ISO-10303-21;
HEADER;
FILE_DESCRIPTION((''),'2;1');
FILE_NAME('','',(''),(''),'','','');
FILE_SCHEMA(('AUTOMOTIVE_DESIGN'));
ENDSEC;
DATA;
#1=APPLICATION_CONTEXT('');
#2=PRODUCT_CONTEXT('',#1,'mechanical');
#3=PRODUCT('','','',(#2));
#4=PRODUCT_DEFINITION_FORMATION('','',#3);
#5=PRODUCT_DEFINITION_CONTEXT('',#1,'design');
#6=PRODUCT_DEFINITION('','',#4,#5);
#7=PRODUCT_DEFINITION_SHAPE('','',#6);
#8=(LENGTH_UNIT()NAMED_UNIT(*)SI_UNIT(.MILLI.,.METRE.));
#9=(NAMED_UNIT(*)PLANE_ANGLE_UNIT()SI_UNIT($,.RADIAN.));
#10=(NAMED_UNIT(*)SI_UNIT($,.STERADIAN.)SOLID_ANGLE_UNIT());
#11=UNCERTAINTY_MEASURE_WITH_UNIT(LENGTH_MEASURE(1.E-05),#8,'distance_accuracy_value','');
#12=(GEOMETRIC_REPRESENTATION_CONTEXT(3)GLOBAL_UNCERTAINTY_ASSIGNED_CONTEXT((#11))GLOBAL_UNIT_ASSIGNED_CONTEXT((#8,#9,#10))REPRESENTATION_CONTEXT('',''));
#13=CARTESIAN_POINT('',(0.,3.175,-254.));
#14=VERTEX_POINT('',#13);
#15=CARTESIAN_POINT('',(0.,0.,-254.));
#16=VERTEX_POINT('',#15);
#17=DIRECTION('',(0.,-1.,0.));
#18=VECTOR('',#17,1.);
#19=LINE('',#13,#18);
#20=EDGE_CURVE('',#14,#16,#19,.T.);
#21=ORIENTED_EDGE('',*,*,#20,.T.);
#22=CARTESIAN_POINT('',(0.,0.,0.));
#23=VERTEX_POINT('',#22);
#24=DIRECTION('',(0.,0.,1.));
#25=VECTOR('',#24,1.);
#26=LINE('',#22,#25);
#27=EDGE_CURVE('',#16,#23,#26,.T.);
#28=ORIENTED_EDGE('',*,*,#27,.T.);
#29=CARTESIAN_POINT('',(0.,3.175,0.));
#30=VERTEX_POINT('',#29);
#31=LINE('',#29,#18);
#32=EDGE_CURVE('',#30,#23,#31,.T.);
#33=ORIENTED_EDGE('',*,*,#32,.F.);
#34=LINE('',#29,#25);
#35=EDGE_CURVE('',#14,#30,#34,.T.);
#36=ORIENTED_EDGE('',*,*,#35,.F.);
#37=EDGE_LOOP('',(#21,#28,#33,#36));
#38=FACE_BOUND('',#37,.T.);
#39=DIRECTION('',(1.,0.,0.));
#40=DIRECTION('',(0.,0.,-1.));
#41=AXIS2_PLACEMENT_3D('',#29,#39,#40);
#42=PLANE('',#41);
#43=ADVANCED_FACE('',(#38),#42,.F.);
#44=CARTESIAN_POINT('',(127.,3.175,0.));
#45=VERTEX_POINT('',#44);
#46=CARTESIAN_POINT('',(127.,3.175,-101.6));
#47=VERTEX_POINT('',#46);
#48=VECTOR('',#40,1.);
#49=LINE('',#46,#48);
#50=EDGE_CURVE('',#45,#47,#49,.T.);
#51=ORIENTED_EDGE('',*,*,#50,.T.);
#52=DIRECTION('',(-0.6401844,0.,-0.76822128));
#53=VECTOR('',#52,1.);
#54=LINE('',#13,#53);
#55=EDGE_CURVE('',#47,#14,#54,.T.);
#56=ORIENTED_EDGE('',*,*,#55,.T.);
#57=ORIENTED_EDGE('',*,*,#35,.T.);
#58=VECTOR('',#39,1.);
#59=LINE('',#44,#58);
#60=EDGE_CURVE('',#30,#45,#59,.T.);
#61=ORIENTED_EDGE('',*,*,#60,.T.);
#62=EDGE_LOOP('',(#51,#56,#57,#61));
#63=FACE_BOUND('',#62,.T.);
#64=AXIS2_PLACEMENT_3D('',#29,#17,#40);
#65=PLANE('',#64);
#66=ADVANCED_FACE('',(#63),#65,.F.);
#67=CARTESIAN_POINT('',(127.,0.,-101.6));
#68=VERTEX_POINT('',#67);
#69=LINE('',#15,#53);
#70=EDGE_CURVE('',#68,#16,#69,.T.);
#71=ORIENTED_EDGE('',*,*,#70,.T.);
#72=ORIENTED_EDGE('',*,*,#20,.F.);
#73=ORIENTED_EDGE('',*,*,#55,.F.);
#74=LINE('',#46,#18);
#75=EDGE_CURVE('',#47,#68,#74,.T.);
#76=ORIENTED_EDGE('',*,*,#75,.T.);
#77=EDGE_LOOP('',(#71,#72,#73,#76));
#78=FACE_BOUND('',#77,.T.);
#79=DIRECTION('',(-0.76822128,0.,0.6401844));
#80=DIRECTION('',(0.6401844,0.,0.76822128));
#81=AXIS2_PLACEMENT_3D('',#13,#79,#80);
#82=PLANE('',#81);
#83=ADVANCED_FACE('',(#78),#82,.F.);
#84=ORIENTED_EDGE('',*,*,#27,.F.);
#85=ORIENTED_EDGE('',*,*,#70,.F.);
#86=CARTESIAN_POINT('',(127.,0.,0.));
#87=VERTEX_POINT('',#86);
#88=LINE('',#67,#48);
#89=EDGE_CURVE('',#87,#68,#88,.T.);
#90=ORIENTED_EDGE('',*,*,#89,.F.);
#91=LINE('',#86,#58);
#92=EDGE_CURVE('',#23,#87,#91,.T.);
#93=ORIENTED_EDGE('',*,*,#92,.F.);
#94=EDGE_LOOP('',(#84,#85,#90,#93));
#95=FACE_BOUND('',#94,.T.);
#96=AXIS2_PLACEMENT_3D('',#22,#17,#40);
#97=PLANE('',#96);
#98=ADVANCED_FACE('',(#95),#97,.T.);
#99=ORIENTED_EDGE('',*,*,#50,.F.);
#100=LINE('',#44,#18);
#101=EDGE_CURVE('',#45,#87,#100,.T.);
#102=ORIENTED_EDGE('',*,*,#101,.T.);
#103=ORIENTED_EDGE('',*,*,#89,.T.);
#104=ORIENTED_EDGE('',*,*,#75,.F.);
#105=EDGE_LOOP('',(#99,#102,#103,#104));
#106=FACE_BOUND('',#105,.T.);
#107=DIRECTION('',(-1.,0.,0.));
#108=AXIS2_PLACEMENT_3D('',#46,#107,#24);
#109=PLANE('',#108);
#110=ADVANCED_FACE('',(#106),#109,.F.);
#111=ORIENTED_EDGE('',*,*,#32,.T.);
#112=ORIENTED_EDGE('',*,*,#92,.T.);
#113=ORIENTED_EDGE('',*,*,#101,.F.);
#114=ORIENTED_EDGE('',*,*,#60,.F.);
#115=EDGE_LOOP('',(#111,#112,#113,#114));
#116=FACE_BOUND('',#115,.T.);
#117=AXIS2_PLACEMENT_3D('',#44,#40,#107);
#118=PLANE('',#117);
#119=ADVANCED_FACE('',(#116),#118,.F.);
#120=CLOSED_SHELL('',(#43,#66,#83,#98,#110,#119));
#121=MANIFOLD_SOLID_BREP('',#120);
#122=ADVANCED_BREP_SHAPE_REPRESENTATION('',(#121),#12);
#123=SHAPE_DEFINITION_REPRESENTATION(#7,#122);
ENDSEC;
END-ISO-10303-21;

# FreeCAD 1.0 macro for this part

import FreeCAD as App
import Part
import Sketcher
Q = App.Units.Quantity

doc = App.newDocument("Part")
body = doc.addObject("PartDesign::Body", "Body")

sketch1 = doc.addObject("Sketcher::SketchObject", "Sketch")
body.addObject(sketch1)
sketch1.AttachmentSupport = (doc.XZ_Plane, [""])
sketch1.MapMode = "FlatFace"
sketch1.addGeometry([
    Part.LineSegment(App.Vector(0, -254, 0), App.Vector(0, 0, 0)),
    Part.LineSegment(App.Vector(0, 0, 0), App.Vector(127, 0, 0)),
    Part.LineSegment(App.Vector(127, 0, 0), App.Vector(127, -101.6, 0)),
    Part.LineSegment(App.Vector(127, -101.6, 0), App.Vector(0, -254, 0)),
], False)
sketch1.addConstraint([
    Sketcher.Constraint("Coincident", 0, 2, 1, 1),
    Sketcher.Constraint("Coincident", 1, 2, 2, 1),
    Sketcher.Constraint("Coincident", 2, 2, 3, 1),
    Sketcher.Constraint("Coincident", 3, 2, 0, 1),
    Sketcher.Constraint("Vertical", 0),
    Sketcher.Constraint("Horizontal", 1),
    Sketcher.Constraint("Vertical", 2),
    Sketcher.Constraint("Coincident", 0, 2, -1, 1),
    Sketcher.Constraint("DistanceX", 1, 1, 1, 2, Q("5 in")),
    Sketcher.Constraint("DistanceY", 0, 1, 0, 2, Q("10 in")),
    Sketcher.Constraint("DistanceY", 2, 2, 2, 1, Q("4 in")),
])
pad1 = doc.addObject("PartDesign::Pad", "Pad")
body.addObject(pad1)
pad1.Profile = sketch1
pad1.Length = Q("0.125 in")
pad1.Reversed = True

doc.recompute()
